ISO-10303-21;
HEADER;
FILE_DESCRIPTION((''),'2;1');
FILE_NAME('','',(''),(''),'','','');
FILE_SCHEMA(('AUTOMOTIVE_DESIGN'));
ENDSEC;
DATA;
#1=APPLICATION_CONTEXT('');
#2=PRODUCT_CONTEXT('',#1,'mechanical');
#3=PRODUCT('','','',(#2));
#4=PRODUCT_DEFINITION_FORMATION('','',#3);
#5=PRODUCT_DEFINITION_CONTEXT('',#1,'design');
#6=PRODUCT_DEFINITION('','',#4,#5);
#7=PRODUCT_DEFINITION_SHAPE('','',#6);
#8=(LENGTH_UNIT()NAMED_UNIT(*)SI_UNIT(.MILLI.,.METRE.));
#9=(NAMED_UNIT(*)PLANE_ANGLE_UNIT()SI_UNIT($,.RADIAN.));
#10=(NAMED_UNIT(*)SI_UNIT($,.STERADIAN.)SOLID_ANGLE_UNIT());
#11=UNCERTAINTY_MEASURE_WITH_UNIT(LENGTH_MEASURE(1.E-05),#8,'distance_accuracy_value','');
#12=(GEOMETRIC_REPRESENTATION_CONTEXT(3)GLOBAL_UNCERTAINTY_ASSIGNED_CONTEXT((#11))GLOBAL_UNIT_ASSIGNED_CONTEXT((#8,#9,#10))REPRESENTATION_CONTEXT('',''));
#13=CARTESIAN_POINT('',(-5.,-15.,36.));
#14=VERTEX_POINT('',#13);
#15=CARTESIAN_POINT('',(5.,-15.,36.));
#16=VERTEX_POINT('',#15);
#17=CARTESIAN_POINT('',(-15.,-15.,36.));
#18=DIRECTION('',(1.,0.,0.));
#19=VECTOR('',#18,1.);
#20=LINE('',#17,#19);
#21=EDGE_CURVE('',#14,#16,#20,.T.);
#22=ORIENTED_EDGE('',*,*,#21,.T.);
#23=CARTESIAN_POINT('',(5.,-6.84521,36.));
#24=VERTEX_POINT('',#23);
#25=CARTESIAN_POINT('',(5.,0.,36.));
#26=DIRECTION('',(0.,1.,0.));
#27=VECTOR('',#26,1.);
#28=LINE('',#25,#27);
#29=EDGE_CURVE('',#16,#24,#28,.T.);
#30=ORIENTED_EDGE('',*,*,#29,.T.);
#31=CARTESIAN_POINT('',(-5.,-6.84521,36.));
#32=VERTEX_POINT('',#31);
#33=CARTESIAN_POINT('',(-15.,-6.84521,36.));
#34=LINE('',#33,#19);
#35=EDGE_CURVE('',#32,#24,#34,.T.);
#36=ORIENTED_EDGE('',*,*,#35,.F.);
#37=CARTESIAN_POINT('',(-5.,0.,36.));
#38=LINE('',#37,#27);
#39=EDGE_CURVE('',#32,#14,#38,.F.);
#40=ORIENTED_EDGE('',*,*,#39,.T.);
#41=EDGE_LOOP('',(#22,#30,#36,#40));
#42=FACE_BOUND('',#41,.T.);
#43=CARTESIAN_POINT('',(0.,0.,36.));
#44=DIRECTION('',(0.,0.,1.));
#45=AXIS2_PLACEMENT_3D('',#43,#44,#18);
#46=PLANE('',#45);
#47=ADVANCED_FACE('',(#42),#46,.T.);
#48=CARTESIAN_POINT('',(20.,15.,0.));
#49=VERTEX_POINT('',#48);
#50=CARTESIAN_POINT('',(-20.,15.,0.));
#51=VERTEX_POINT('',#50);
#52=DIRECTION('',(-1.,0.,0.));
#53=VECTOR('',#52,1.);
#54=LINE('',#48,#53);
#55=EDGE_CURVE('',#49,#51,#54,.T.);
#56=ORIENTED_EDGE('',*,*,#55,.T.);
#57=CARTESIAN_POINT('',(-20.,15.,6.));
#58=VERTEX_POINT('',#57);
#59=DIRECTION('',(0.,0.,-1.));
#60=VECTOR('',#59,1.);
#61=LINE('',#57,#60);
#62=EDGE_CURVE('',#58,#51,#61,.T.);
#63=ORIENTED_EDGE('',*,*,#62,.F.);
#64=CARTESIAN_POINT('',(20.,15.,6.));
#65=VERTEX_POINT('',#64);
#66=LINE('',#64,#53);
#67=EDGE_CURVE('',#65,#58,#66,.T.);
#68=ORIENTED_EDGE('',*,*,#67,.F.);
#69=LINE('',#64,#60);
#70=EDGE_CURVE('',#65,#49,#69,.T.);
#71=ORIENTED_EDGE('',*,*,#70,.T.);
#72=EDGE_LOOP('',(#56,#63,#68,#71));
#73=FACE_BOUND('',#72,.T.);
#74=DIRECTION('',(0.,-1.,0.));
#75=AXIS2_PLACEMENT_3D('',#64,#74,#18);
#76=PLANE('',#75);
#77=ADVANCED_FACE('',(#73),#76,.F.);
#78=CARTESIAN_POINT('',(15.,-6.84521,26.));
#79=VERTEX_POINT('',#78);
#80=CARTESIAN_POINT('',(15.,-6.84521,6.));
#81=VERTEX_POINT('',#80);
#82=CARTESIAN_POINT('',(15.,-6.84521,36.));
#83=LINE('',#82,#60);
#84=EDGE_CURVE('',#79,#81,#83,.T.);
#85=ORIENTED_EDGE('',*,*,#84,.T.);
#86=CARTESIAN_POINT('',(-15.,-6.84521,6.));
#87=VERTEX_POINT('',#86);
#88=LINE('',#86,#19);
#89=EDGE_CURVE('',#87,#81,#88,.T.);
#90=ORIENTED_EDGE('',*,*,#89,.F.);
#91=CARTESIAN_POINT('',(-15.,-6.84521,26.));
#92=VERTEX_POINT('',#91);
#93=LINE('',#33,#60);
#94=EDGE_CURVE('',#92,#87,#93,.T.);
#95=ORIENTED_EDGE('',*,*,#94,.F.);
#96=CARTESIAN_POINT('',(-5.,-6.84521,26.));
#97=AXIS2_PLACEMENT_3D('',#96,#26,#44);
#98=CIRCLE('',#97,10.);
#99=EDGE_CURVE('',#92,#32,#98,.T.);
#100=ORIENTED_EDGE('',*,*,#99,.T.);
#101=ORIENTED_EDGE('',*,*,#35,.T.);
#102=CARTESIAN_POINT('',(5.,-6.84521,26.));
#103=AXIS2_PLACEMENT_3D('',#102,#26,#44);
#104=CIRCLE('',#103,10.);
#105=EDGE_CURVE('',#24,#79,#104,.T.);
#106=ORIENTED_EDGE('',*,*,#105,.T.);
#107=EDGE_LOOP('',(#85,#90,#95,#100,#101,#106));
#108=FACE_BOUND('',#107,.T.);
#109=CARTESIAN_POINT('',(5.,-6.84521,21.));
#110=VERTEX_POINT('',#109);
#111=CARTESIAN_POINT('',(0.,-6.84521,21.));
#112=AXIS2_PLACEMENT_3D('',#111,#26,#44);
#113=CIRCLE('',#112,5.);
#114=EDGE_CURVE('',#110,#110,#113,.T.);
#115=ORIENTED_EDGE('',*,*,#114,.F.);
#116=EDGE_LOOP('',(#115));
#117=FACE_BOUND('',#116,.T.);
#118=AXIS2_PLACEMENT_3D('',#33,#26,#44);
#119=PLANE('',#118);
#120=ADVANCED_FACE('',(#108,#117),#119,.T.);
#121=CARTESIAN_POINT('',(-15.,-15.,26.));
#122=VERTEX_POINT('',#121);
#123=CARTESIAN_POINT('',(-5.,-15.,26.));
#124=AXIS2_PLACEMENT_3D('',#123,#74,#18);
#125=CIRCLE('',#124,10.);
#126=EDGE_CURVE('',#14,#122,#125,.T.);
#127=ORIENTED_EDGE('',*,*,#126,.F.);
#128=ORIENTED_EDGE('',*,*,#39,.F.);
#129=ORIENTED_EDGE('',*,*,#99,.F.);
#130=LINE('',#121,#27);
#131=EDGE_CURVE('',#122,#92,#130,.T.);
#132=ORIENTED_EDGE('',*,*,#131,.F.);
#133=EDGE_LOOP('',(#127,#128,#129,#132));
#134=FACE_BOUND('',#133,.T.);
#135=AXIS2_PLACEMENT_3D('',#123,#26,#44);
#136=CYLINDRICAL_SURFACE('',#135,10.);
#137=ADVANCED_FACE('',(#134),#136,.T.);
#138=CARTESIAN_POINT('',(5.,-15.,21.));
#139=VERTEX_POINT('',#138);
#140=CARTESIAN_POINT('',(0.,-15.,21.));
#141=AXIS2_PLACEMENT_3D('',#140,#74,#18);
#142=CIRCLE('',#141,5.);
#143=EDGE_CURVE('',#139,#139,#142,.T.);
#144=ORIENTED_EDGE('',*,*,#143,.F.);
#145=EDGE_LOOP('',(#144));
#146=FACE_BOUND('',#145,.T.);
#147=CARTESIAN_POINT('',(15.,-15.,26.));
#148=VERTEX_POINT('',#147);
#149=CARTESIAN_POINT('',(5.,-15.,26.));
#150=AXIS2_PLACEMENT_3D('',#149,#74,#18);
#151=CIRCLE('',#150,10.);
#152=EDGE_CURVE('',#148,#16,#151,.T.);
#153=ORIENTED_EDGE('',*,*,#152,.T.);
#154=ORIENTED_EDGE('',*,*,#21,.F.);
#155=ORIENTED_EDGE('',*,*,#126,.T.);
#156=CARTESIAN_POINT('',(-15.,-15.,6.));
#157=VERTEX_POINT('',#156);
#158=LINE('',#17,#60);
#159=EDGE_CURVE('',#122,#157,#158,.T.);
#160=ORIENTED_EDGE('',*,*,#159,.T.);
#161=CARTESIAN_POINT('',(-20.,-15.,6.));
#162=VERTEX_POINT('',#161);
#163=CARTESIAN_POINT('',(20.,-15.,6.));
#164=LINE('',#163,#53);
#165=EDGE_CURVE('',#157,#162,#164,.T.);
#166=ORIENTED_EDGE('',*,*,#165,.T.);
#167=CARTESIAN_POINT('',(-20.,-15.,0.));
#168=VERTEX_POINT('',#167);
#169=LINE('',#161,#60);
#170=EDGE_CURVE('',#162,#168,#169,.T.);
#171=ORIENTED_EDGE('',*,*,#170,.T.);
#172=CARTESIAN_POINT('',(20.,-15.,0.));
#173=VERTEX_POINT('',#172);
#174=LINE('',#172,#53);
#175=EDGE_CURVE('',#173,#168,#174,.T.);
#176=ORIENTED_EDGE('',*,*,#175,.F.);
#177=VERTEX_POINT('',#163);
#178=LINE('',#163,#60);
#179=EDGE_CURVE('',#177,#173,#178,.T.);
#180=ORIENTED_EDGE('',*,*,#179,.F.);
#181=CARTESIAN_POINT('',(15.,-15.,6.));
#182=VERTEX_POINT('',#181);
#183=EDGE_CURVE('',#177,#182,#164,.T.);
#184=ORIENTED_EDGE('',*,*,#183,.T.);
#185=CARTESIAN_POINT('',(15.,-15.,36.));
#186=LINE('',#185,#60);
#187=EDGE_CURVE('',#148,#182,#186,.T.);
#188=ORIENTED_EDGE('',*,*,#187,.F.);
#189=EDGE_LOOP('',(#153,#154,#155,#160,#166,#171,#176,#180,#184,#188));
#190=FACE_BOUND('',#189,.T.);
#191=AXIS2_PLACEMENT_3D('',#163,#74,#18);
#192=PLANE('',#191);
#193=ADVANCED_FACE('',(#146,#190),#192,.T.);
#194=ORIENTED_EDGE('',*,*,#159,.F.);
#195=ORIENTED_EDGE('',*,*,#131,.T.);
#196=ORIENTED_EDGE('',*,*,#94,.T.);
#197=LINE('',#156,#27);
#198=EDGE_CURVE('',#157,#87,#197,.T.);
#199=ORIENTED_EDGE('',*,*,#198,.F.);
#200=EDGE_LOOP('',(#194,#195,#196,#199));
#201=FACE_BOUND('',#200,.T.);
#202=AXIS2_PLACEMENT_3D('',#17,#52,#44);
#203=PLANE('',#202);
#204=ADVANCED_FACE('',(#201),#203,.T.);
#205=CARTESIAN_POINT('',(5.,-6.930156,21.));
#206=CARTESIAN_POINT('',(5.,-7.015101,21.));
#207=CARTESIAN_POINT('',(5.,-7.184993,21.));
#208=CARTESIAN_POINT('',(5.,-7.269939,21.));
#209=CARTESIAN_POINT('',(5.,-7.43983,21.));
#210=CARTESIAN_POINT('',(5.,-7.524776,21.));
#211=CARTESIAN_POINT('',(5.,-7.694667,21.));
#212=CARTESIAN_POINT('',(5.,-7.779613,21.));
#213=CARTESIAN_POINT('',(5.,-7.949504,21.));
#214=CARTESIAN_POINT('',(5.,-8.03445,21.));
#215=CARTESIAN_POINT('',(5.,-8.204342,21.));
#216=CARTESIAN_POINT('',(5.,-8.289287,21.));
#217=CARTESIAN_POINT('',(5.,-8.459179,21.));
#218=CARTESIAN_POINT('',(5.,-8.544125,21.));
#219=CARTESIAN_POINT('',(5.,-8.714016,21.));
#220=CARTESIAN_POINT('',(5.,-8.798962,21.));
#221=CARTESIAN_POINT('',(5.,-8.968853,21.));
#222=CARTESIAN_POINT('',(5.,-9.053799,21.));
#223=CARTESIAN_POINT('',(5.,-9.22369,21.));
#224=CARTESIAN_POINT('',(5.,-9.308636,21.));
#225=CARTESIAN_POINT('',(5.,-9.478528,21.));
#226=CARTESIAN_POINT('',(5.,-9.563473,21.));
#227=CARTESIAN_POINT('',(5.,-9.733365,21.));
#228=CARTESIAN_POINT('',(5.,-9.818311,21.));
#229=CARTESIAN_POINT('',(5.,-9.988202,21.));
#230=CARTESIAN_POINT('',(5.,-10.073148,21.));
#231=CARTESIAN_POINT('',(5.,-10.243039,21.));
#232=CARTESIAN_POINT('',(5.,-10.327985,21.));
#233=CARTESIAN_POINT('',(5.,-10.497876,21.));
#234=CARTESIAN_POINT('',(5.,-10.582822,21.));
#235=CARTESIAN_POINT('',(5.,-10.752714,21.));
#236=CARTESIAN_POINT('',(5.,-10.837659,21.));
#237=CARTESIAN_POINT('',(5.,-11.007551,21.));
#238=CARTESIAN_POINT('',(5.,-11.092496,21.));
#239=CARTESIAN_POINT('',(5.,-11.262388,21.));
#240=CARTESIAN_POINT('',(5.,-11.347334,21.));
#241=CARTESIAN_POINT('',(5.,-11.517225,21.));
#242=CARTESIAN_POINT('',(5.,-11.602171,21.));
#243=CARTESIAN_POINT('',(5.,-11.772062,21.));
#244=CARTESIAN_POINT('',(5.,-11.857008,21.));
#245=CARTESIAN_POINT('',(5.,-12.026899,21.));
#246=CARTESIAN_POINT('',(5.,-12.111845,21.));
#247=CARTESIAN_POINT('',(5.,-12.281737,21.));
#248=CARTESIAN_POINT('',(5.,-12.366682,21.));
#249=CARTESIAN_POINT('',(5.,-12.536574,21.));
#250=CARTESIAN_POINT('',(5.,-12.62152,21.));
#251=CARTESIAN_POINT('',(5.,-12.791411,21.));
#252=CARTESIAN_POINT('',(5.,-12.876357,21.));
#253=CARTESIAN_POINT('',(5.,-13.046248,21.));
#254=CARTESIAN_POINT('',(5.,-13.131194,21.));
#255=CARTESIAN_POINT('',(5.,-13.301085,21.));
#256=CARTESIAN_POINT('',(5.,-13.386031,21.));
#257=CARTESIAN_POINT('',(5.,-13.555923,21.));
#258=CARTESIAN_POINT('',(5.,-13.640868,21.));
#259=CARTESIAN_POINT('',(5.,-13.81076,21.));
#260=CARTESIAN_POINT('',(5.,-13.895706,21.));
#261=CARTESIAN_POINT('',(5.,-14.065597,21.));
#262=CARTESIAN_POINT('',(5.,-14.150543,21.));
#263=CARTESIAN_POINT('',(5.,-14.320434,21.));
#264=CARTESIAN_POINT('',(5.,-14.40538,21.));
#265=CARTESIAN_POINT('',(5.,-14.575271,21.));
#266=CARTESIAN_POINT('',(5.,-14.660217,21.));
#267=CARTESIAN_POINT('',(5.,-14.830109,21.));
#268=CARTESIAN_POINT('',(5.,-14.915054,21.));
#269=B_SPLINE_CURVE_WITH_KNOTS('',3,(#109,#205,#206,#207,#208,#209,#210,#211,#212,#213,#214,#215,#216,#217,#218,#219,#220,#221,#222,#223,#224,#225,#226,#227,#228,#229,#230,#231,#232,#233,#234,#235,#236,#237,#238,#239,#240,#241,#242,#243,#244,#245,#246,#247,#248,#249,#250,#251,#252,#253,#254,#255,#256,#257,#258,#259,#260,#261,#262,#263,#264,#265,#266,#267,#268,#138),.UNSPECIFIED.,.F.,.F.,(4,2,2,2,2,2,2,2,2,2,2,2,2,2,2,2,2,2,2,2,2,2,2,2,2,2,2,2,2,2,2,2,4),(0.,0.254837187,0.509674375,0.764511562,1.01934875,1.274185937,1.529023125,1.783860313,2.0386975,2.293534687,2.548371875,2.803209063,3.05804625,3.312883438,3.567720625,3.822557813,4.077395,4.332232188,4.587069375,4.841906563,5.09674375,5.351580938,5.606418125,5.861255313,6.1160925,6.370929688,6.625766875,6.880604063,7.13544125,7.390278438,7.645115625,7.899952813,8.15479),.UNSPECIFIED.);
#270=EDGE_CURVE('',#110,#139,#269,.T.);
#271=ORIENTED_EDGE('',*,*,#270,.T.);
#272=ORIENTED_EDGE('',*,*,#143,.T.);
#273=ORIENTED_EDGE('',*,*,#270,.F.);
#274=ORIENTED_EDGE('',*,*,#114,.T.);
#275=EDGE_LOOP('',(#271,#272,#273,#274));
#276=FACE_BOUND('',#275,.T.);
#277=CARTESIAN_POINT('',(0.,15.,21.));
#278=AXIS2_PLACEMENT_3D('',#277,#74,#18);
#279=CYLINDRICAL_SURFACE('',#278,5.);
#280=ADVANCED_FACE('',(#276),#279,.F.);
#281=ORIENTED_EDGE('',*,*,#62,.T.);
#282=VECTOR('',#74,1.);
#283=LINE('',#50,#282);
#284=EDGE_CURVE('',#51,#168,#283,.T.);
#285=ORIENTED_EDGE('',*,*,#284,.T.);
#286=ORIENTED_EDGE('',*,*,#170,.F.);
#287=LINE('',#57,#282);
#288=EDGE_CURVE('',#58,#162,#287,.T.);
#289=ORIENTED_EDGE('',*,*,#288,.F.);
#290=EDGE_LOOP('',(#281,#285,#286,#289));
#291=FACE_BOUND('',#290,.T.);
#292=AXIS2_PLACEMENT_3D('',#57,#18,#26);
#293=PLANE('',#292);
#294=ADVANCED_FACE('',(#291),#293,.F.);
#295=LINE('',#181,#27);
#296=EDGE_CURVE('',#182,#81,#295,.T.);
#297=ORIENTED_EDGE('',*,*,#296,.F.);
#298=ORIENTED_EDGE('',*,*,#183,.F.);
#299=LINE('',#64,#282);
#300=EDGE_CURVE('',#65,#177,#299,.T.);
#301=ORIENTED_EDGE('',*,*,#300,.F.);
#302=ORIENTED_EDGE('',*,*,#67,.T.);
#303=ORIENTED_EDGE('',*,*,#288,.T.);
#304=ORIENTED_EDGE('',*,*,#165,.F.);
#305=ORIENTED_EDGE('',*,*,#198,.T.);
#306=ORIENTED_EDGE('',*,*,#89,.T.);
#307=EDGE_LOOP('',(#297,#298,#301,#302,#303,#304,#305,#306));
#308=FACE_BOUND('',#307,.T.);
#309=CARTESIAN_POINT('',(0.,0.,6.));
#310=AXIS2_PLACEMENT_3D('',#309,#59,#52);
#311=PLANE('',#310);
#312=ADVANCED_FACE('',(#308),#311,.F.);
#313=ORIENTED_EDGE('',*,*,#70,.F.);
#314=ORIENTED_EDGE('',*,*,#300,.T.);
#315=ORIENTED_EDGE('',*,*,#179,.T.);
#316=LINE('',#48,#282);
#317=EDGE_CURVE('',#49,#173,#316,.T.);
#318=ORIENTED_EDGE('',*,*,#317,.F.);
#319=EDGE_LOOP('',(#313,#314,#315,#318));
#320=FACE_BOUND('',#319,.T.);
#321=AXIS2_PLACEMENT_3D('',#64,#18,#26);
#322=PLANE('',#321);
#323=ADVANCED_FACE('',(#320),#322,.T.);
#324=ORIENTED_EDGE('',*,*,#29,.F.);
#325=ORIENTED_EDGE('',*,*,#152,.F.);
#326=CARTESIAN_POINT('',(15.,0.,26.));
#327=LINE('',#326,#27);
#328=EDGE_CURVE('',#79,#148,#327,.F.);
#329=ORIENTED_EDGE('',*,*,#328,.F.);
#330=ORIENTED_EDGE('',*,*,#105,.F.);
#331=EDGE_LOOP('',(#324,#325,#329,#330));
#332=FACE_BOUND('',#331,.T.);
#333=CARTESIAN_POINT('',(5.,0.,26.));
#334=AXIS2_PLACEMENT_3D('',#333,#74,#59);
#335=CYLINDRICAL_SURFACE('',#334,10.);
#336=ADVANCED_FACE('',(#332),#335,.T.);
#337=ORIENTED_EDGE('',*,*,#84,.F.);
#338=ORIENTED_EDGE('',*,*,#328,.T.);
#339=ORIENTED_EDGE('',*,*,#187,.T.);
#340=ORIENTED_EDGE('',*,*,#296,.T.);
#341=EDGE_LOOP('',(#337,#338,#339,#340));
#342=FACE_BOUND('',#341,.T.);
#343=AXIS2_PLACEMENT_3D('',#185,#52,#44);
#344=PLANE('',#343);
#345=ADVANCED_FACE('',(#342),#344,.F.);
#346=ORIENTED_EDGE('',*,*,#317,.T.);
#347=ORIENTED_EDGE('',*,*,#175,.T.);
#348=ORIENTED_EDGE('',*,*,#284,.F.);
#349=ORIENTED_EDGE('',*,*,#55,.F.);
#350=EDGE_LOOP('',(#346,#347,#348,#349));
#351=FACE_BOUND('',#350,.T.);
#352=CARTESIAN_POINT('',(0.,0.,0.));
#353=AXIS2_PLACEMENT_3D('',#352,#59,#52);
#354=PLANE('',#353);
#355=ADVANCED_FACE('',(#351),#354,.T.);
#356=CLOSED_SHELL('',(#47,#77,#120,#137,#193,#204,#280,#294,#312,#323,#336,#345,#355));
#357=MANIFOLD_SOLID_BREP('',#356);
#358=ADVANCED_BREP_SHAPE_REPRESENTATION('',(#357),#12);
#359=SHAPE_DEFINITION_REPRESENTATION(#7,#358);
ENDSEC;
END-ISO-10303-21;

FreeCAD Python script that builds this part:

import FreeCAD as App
import Part
import Sketcher

V = App.Vector


def edges_at(feature, points):
    """Names of the edges that pass closest to the given points."""
    edges = feature.Shape.Edges
    near = lambda p: min(range(len(edges)), key=lambda i: edges[i].distToShape(Part.Vertex(*p))[0])
    return sorted({f"Edge{near(p) + 1}" for p in points})


def add_polygon(sketch, points):
    """Adds a closed chain of lines whose ends are joined by coincident constraints."""
    first, n = sketch.GeometryCount, len(points)
    for a, b in zip(points, points[1:] + points[:1]):
        sketch.addGeometry(Part.LineSegment(App.Vector(*a, 0), App.Vector(*b, 0)), False)
    for i in range(n):
        sketch.addConstraint(Sketcher.Constraint("Coincident", first + i, 2, first + (i + 1) % n, 1))

doc = App.newDocument("Part")
params = doc.addObject("Spreadsheet::Sheet", "Params")
for row, (alias, value) in enumerate([
    ("sketch1_width", "40 mm"),
    ("sketch1_height", "30 mm"),
    ("pad1_length", "6 mm"),
    ("sketch2_width", "30 mm"),
    ("pad2_length", "30 mm"),
    ("sketch3_diameter", "10 mm"),
    ("fillet_radius", "10 mm"),
    ("fillet2_radius", "10 mm"),
], start=1):
    params.set(f"A{row}", alias)
    params.set(f"B{row}", "=" + value)
    params.setAlias(f"B{row}", alias)

body = doc.addObject("PartDesign::Body", "Body")

# Sketch on XY plane
sketch1 = doc.addObject("Sketcher::SketchObject", "Sketch")
body.addObject(sketch1)
sketch1.AttachmentSupport = (doc.XY_Plane, [""])
sketch1.MapMode = "FlatFace"
add_polygon(sketch1, [(-20, 15), (-20, -15), (20, -15), (20, 15)])  # lines 0-3
sketch1.addConstraint(Sketcher.Constraint("Vertical", 0))
sketch1.addConstraint(Sketcher.Constraint("Horizontal", 1))
sketch1.addConstraint(Sketcher.Constraint("Vertical", 2))
sketch1.addConstraint(Sketcher.Constraint("Horizontal", 3))
sketch1.addConstraint(Sketcher.Constraint("Symmetric", 0, 2, 2, 2, -1, 1))
sketch1.addConstraint(Sketcher.Constraint("DistanceX", 1, 1, 1, 2, 40.0))
sketch1.addConstraint(Sketcher.Constraint("DistanceY", 0, 2, 0, 1, 30.0))
sketch1.setExpression("Constraints[9]", "Params.sketch1_width")
sketch1.setExpression("Constraints[10]", "Params.sketch1_height")
pad1 = doc.addObject("PartDesign::Pad", "Pad")
body.addObject(pad1)
pad1.Profile = sketch1
pad1.setExpression("Length", "Params.pad1_length")

# Sketch on XY plane
sketch2 = doc.addObject("Sketcher::SketchObject", "Sketch001")
body.addObject(sketch2)
sketch2.AttachmentSupport = (doc.XY_Plane, [""])
sketch2.MapMode = "FlatFace"
sketch2.AttachmentOffset = App.Placement(V(0, 0, 6), App.Rotation())
add_polygon(sketch2, [(-15, -7), (-15, -15), (15, -15), (15, -7)])  # lines 0-3
sketch2.addConstraint(Sketcher.Constraint("Vertical", 0))
sketch2.addConstraint(Sketcher.Constraint("Horizontal", 1))
sketch2.addConstraint(Sketcher.Constraint("Vertical", 2))
sketch2.addConstraint(Sketcher.Constraint("Horizontal", 3))
sketch2.addConstraint(Sketcher.Constraint("DistanceX", 1, 1, 1, 2, 30.0))
sketch2.addConstraint(Sketcher.Constraint("DistanceX", 0, 2, -1, 1, 15.0))
sketch2.addConstraint(Sketcher.Constraint("DistanceY", 0, 2, -1, 1, 15.0))
sketch2.addConstraint(Sketcher.Constraint("DistanceY", 0, 2, 0, 1, 8.15479))
sketch2.setExpression("Constraints[8]", "Params.sketch2_width")
pad2 = doc.addObject("PartDesign::Pad", "Pad001")
body.addObject(pad2)
pad2.Profile = sketch2
pad2.setExpression("Length", "Params.pad2_length")

# Sketch on XZ plane
sketch3 = doc.addObject("Sketcher::SketchObject", "Sketch002")
body.addObject(sketch3)
sketch3.AttachmentSupport = (doc.XZ_Plane, [""])
sketch3.MapMode = "FlatFace"
sketch3.AttachmentOffset = App.Placement(V(0, 0, 15), App.Rotation())
sketch3.addGeometry(Part.Circle(V(0, 21, 0), V(0, 0, 1), 5), False)
sketch3.addConstraint(Sketcher.Constraint("PointOnObject", 0, 3, -2))
sketch3.addConstraint(Sketcher.Constraint("Diameter", 0, 10.0))
sketch3.addConstraint(Sketcher.Constraint("DistanceY", -1, 1, 0, 3, 21.0))
sketch3.setExpression("Constraints[1]", "Params.sketch3_diameter")
pocket1 = doc.addObject("PartDesign::Pocket", "Pocket")
body.addObject(pocket1)
pocket1.Profile = sketch3
pocket1.Type = "ThroughAll"
doc.recompute()

fillet = doc.addObject("PartDesign::Fillet", "Fillet")
body.addObject(fillet)
fillet.Base = (pocket1, edges_at(pocket1, [(-15, -10.923, 36)]))
fillet.setExpression("Radius", "Params.fillet_radius")
doc.recompute()

fillet2 = doc.addObject("PartDesign::Fillet", "Fillet001")
body.addObject(fillet2)
fillet2.Base = (fillet, edges_at(fillet, [(15, -10.923, 36)]))
fillet2.setExpression("Radius", "Params.fillet2_radius")

doc.recompute()
